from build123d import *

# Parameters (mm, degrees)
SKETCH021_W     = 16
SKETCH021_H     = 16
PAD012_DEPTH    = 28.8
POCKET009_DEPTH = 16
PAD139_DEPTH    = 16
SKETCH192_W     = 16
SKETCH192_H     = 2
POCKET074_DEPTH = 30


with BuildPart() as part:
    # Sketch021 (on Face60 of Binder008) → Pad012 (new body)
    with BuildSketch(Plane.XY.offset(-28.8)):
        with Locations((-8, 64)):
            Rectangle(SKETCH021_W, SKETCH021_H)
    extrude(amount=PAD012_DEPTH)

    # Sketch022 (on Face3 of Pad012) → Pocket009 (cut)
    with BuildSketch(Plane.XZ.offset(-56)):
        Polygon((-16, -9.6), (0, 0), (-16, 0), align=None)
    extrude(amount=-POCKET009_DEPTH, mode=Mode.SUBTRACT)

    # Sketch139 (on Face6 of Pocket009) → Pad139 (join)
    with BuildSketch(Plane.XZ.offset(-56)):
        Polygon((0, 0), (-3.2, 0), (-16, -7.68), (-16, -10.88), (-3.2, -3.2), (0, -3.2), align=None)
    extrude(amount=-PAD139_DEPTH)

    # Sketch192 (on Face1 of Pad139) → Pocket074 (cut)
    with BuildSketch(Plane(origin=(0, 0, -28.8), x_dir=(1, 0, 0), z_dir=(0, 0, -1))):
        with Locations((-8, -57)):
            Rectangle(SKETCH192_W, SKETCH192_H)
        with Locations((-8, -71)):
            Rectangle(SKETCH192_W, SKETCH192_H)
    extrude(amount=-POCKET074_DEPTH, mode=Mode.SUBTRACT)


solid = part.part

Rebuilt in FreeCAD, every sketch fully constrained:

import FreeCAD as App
import Part
import Sketcher
Q = App.Units.Quantity

doc = App.newDocument("Part")
body = doc.addObject("PartDesign::Body", "Body")

# Sketch on XY plane
sketch1 = doc.addObject("Sketcher::SketchObject", "Sketch")
body.addObject(sketch1)
sketch1.AttachmentSupport = (doc.XY_Plane, [""])
sketch1.MapMode = "FlatFace"
sketch1.AttachmentOffset = App.Placement(App.Vector(0, 0, -28.8), App.Rotation())
sketch1.addGeometry([
    Part.LineSegment(App.Vector(-16, 72, 0), App.Vector(-16, 56, 0)),
    Part.LineSegment(App.Vector(-16, 56, 0), App.Vector(0, 56, 0)),
    Part.LineSegment(App.Vector(0, 56, 0), App.Vector(0, 72, 0)),
    Part.LineSegment(App.Vector(0, 72, 0), App.Vector(-16, 72, 0)),
], False)
sketch1.addConstraint([
    Sketcher.Constraint("Coincident", 0, 2, 1, 1),
    Sketcher.Constraint("Coincident", 1, 2, 2, 1),
    Sketcher.Constraint("Coincident", 2, 2, 3, 1),
    Sketcher.Constraint("Coincident", 3, 2, 0, 1),
    Sketcher.Constraint("Vertical", 0),
    Sketcher.Constraint("Horizontal", 1),
    Sketcher.Constraint("Vertical", 2),
    Sketcher.Constraint("Horizontal", 3),
    Sketcher.Constraint("PointOnObject", 1, 2, -2),
    Sketcher.Constraint("Equal", 3, 0),
    Sketcher.Constraint("DistanceX", 1, 1, 1, 2, Q("16 mm")),
    Sketcher.Constraint("DistanceY", -1, 1, 0, 2, Q("56 mm")),
])
pad1 = doc.addObject("PartDesign::Pad", "Pad")
body.addObject(pad1)
pad1.Profile = sketch1
pad1.Length = 28.8

# Sketch on XZ plane
sketch2 = doc.addObject("Sketcher::SketchObject", "Sketch001")
body.addObject(sketch2)
sketch2.AttachmentSupport = (doc.XZ_Plane, [""])
sketch2.MapMode = "FlatFace"
sketch2.AttachmentOffset = App.Placement(App.Vector(0, 0, -56), App.Rotation())
sketch2.addGeometry([
    Part.LineSegment(App.Vector(-16, -9.6, 0), App.Vector(0, 0, 0)),
    Part.LineSegment(App.Vector(0, 0, 0), App.Vector(-16, 0, 0)),
    Part.LineSegment(App.Vector(-16, 0, 0), App.Vector(-16, -9.6, 0)),
], False)
sketch2.addConstraint([
    Sketcher.Constraint("Coincident", 0, 2, 1, 1),
    Sketcher.Constraint("Coincident", 1, 2, 2, 1),
    Sketcher.Constraint("Coincident", 2, 2, 0, 1),
    Sketcher.Constraint("Horizontal", 1),
    Sketcher.Constraint("Vertical", 2),
    Sketcher.Constraint("Coincident", 0, 2, -1, 1),
    Sketcher.Constraint("DistanceX", 1, 2, 1, 1, Q("16 mm")),
    Sketcher.Constraint("DistanceY", 2, 2, 2, 1, Q("9.6 mm")),
])
pocket1 = doc.addObject("PartDesign::Pocket", "Pocket")
body.addObject(pocket1)
pocket1.Profile = sketch2
pocket1.Length = 16

# Sketch on XZ plane
sketch3 = doc.addObject("Sketcher::SketchObject", "Sketch002")
body.addObject(sketch3)
sketch3.AttachmentSupport = (doc.XZ_Plane, [""])
sketch3.MapMode = "FlatFace"
sketch3.AttachmentOffset = App.Placement(App.Vector(0, 0, -56), App.Rotation())
sketch3.addGeometry([
    Part.LineSegment(App.Vector(0, 0, 0), App.Vector(-3.2, 0, 0)),  # 0
    Part.LineSegment(App.Vector(-3.2, 0, 0), App.Vector(-16, -7.68, 0)),  # 1
    Part.LineSegment(App.Vector(-16, -7.68, 0), App.Vector(-16, -10.88, 0)),  # 2
    Part.LineSegment(App.Vector(-16, -10.88, 0), App.Vector(-3.2, -3.2, 0)),  # 3
    Part.LineSegment(App.Vector(-3.2, -3.2, 0), App.Vector(0, -3.2, 0)),  # 4
    Part.LineSegment(App.Vector(0, -3.2, 0), App.Vector(0, 0, 0)),  # 5
], False)
sketch3.addConstraint([
    Sketcher.Constraint("Coincident", 0, 2, 1, 1),
    Sketcher.Constraint("Coincident", 1, 2, 2, 1),
    Sketcher.Constraint("Coincident", 2, 2, 3, 1),
    Sketcher.Constraint("Coincident", 3, 2, 4, 1),
    Sketcher.Constraint("Coincident", 4, 2, 5, 1),
    Sketcher.Constraint("Coincident", 5, 2, 0, 1),
    Sketcher.Constraint("Horizontal", 0),
    Sketcher.Constraint("Vertical", 2),
    Sketcher.Constraint("Horizontal", 4),
    Sketcher.Constraint("Vertical", 5),
    Sketcher.Constraint("Coincident", 5, 2, -1, 1),
    Sketcher.Constraint("Parallel", 1, 3),
    Sketcher.Constraint("Vertical", 0, 2, 3, 2),
    Sketcher.Constraint("Equal", 4, 2),
    Sketcher.Constraint("DistanceX", 0, 2, 0, 1, Q("3.2 mm")),
    Sketcher.Constraint("DistanceX", 1, 2, -1, 1, Q("16 mm")),
    Sketcher.Constraint("DistanceY", 1, 2, -1, 1, Q("7.68 mm")),
])
pad2 = doc.addObject("PartDesign::Pad", "Pad001")
body.addObject(pad2)
pad2.Profile = sketch3
pad2.Length = 16
pad2.Reversed = True

# Sketch on XY plane
sketch4 = doc.addObject("Sketcher::SketchObject", "Sketch003")
body.addObject(sketch4)
sketch4.AttachmentSupport = (doc.XY_Plane, [""])
sketch4.MapMode = "FlatFace"
sketch4.AttachmentOffset = App.Placement(App.Vector(0, 0, -28.8), App.Rotation())
sketch4.addGeometry([
    Part.LineSegment(App.Vector(-16, 56, 0), App.Vector(-16, 58, 0)),  # 0
    Part.LineSegment(App.Vector(-16, 58, 0), App.Vector(0, 58, 0)),  # 1
    Part.LineSegment(App.Vector(0, 58, 0), App.Vector(0, 56, 0)),  # 2
    Part.LineSegment(App.Vector(0, 56, 0), App.Vector(-16, 56, 0)),  # 3
    Part.LineSegment(App.Vector(-16, 70, 0), App.Vector(-16, 72, 0)),  # 4
    Part.LineSegment(App.Vector(-16, 72, 0), App.Vector(0, 72, 0)),  # 5
    Part.LineSegment(App.Vector(0, 72, 0), App.Vector(0, 70, 0)),  # 6
    Part.LineSegment(App.Vector(0, 70, 0), App.Vector(-16, 70, 0)),  # 7
], False)
sketch4.addConstraint([
    Sketcher.Constraint("Coincident", 0, 2, 1, 1),
    Sketcher.Constraint("Coincident", 1, 2, 2, 1),
    Sketcher.Constraint("Coincident", 2, 2, 3, 1),
    Sketcher.Constraint("Coincident", 3, 2, 0, 1),
    Sketcher.Constraint("Coincident", 4, 2, 5, 1),
    Sketcher.Constraint("Coincident", 5, 2, 6, 1),
    Sketcher.Constraint("Coincident", 6, 2, 7, 1),
    Sketcher.Constraint("Coincident", 7, 2, 4, 1),
    Sketcher.Constraint("Vertical", 0),
    Sketcher.Constraint("Horizontal", 1),
    Sketcher.Constraint("Vertical", 2),
    Sketcher.Constraint("Horizontal", 3),
    Sketcher.Constraint("Vertical", 4),
    Sketcher.Constraint("Horizontal", 5),
    Sketcher.Constraint("Vertical", 6),
    Sketcher.Constraint("Horizontal", 7),
    Sketcher.Constraint("PointOnObject", 1, 2, -2),
    Sketcher.Constraint("PointOnObject", 5, 2, -2),
    Sketcher.Constraint("Vertical", 3, 2, 4, 2),
    Sketcher.Constraint("Equal", 2, 4),
    Sketcher.Constraint("DistanceX", 1, 1, 1, 2, Q("16 mm")),
    Sketcher.Constraint("DistanceY", 0, 1, 0, 2, Q("2 mm")),
    Sketcher.Constraint("DistanceY", -1, 1, 0, 2, Q("58 mm")),
    Sketcher.Constraint("DistanceY", -1, 1, 4, 2, Q("72 mm")),
])
pocket2 = doc.addObject("PartDesign::Pocket", "Pocket001")
body.addObject(pocket2)
pocket2.Profile = sketch4
pocket2.Length = 30
pocket2.Reversed = True

doc.recompute()
